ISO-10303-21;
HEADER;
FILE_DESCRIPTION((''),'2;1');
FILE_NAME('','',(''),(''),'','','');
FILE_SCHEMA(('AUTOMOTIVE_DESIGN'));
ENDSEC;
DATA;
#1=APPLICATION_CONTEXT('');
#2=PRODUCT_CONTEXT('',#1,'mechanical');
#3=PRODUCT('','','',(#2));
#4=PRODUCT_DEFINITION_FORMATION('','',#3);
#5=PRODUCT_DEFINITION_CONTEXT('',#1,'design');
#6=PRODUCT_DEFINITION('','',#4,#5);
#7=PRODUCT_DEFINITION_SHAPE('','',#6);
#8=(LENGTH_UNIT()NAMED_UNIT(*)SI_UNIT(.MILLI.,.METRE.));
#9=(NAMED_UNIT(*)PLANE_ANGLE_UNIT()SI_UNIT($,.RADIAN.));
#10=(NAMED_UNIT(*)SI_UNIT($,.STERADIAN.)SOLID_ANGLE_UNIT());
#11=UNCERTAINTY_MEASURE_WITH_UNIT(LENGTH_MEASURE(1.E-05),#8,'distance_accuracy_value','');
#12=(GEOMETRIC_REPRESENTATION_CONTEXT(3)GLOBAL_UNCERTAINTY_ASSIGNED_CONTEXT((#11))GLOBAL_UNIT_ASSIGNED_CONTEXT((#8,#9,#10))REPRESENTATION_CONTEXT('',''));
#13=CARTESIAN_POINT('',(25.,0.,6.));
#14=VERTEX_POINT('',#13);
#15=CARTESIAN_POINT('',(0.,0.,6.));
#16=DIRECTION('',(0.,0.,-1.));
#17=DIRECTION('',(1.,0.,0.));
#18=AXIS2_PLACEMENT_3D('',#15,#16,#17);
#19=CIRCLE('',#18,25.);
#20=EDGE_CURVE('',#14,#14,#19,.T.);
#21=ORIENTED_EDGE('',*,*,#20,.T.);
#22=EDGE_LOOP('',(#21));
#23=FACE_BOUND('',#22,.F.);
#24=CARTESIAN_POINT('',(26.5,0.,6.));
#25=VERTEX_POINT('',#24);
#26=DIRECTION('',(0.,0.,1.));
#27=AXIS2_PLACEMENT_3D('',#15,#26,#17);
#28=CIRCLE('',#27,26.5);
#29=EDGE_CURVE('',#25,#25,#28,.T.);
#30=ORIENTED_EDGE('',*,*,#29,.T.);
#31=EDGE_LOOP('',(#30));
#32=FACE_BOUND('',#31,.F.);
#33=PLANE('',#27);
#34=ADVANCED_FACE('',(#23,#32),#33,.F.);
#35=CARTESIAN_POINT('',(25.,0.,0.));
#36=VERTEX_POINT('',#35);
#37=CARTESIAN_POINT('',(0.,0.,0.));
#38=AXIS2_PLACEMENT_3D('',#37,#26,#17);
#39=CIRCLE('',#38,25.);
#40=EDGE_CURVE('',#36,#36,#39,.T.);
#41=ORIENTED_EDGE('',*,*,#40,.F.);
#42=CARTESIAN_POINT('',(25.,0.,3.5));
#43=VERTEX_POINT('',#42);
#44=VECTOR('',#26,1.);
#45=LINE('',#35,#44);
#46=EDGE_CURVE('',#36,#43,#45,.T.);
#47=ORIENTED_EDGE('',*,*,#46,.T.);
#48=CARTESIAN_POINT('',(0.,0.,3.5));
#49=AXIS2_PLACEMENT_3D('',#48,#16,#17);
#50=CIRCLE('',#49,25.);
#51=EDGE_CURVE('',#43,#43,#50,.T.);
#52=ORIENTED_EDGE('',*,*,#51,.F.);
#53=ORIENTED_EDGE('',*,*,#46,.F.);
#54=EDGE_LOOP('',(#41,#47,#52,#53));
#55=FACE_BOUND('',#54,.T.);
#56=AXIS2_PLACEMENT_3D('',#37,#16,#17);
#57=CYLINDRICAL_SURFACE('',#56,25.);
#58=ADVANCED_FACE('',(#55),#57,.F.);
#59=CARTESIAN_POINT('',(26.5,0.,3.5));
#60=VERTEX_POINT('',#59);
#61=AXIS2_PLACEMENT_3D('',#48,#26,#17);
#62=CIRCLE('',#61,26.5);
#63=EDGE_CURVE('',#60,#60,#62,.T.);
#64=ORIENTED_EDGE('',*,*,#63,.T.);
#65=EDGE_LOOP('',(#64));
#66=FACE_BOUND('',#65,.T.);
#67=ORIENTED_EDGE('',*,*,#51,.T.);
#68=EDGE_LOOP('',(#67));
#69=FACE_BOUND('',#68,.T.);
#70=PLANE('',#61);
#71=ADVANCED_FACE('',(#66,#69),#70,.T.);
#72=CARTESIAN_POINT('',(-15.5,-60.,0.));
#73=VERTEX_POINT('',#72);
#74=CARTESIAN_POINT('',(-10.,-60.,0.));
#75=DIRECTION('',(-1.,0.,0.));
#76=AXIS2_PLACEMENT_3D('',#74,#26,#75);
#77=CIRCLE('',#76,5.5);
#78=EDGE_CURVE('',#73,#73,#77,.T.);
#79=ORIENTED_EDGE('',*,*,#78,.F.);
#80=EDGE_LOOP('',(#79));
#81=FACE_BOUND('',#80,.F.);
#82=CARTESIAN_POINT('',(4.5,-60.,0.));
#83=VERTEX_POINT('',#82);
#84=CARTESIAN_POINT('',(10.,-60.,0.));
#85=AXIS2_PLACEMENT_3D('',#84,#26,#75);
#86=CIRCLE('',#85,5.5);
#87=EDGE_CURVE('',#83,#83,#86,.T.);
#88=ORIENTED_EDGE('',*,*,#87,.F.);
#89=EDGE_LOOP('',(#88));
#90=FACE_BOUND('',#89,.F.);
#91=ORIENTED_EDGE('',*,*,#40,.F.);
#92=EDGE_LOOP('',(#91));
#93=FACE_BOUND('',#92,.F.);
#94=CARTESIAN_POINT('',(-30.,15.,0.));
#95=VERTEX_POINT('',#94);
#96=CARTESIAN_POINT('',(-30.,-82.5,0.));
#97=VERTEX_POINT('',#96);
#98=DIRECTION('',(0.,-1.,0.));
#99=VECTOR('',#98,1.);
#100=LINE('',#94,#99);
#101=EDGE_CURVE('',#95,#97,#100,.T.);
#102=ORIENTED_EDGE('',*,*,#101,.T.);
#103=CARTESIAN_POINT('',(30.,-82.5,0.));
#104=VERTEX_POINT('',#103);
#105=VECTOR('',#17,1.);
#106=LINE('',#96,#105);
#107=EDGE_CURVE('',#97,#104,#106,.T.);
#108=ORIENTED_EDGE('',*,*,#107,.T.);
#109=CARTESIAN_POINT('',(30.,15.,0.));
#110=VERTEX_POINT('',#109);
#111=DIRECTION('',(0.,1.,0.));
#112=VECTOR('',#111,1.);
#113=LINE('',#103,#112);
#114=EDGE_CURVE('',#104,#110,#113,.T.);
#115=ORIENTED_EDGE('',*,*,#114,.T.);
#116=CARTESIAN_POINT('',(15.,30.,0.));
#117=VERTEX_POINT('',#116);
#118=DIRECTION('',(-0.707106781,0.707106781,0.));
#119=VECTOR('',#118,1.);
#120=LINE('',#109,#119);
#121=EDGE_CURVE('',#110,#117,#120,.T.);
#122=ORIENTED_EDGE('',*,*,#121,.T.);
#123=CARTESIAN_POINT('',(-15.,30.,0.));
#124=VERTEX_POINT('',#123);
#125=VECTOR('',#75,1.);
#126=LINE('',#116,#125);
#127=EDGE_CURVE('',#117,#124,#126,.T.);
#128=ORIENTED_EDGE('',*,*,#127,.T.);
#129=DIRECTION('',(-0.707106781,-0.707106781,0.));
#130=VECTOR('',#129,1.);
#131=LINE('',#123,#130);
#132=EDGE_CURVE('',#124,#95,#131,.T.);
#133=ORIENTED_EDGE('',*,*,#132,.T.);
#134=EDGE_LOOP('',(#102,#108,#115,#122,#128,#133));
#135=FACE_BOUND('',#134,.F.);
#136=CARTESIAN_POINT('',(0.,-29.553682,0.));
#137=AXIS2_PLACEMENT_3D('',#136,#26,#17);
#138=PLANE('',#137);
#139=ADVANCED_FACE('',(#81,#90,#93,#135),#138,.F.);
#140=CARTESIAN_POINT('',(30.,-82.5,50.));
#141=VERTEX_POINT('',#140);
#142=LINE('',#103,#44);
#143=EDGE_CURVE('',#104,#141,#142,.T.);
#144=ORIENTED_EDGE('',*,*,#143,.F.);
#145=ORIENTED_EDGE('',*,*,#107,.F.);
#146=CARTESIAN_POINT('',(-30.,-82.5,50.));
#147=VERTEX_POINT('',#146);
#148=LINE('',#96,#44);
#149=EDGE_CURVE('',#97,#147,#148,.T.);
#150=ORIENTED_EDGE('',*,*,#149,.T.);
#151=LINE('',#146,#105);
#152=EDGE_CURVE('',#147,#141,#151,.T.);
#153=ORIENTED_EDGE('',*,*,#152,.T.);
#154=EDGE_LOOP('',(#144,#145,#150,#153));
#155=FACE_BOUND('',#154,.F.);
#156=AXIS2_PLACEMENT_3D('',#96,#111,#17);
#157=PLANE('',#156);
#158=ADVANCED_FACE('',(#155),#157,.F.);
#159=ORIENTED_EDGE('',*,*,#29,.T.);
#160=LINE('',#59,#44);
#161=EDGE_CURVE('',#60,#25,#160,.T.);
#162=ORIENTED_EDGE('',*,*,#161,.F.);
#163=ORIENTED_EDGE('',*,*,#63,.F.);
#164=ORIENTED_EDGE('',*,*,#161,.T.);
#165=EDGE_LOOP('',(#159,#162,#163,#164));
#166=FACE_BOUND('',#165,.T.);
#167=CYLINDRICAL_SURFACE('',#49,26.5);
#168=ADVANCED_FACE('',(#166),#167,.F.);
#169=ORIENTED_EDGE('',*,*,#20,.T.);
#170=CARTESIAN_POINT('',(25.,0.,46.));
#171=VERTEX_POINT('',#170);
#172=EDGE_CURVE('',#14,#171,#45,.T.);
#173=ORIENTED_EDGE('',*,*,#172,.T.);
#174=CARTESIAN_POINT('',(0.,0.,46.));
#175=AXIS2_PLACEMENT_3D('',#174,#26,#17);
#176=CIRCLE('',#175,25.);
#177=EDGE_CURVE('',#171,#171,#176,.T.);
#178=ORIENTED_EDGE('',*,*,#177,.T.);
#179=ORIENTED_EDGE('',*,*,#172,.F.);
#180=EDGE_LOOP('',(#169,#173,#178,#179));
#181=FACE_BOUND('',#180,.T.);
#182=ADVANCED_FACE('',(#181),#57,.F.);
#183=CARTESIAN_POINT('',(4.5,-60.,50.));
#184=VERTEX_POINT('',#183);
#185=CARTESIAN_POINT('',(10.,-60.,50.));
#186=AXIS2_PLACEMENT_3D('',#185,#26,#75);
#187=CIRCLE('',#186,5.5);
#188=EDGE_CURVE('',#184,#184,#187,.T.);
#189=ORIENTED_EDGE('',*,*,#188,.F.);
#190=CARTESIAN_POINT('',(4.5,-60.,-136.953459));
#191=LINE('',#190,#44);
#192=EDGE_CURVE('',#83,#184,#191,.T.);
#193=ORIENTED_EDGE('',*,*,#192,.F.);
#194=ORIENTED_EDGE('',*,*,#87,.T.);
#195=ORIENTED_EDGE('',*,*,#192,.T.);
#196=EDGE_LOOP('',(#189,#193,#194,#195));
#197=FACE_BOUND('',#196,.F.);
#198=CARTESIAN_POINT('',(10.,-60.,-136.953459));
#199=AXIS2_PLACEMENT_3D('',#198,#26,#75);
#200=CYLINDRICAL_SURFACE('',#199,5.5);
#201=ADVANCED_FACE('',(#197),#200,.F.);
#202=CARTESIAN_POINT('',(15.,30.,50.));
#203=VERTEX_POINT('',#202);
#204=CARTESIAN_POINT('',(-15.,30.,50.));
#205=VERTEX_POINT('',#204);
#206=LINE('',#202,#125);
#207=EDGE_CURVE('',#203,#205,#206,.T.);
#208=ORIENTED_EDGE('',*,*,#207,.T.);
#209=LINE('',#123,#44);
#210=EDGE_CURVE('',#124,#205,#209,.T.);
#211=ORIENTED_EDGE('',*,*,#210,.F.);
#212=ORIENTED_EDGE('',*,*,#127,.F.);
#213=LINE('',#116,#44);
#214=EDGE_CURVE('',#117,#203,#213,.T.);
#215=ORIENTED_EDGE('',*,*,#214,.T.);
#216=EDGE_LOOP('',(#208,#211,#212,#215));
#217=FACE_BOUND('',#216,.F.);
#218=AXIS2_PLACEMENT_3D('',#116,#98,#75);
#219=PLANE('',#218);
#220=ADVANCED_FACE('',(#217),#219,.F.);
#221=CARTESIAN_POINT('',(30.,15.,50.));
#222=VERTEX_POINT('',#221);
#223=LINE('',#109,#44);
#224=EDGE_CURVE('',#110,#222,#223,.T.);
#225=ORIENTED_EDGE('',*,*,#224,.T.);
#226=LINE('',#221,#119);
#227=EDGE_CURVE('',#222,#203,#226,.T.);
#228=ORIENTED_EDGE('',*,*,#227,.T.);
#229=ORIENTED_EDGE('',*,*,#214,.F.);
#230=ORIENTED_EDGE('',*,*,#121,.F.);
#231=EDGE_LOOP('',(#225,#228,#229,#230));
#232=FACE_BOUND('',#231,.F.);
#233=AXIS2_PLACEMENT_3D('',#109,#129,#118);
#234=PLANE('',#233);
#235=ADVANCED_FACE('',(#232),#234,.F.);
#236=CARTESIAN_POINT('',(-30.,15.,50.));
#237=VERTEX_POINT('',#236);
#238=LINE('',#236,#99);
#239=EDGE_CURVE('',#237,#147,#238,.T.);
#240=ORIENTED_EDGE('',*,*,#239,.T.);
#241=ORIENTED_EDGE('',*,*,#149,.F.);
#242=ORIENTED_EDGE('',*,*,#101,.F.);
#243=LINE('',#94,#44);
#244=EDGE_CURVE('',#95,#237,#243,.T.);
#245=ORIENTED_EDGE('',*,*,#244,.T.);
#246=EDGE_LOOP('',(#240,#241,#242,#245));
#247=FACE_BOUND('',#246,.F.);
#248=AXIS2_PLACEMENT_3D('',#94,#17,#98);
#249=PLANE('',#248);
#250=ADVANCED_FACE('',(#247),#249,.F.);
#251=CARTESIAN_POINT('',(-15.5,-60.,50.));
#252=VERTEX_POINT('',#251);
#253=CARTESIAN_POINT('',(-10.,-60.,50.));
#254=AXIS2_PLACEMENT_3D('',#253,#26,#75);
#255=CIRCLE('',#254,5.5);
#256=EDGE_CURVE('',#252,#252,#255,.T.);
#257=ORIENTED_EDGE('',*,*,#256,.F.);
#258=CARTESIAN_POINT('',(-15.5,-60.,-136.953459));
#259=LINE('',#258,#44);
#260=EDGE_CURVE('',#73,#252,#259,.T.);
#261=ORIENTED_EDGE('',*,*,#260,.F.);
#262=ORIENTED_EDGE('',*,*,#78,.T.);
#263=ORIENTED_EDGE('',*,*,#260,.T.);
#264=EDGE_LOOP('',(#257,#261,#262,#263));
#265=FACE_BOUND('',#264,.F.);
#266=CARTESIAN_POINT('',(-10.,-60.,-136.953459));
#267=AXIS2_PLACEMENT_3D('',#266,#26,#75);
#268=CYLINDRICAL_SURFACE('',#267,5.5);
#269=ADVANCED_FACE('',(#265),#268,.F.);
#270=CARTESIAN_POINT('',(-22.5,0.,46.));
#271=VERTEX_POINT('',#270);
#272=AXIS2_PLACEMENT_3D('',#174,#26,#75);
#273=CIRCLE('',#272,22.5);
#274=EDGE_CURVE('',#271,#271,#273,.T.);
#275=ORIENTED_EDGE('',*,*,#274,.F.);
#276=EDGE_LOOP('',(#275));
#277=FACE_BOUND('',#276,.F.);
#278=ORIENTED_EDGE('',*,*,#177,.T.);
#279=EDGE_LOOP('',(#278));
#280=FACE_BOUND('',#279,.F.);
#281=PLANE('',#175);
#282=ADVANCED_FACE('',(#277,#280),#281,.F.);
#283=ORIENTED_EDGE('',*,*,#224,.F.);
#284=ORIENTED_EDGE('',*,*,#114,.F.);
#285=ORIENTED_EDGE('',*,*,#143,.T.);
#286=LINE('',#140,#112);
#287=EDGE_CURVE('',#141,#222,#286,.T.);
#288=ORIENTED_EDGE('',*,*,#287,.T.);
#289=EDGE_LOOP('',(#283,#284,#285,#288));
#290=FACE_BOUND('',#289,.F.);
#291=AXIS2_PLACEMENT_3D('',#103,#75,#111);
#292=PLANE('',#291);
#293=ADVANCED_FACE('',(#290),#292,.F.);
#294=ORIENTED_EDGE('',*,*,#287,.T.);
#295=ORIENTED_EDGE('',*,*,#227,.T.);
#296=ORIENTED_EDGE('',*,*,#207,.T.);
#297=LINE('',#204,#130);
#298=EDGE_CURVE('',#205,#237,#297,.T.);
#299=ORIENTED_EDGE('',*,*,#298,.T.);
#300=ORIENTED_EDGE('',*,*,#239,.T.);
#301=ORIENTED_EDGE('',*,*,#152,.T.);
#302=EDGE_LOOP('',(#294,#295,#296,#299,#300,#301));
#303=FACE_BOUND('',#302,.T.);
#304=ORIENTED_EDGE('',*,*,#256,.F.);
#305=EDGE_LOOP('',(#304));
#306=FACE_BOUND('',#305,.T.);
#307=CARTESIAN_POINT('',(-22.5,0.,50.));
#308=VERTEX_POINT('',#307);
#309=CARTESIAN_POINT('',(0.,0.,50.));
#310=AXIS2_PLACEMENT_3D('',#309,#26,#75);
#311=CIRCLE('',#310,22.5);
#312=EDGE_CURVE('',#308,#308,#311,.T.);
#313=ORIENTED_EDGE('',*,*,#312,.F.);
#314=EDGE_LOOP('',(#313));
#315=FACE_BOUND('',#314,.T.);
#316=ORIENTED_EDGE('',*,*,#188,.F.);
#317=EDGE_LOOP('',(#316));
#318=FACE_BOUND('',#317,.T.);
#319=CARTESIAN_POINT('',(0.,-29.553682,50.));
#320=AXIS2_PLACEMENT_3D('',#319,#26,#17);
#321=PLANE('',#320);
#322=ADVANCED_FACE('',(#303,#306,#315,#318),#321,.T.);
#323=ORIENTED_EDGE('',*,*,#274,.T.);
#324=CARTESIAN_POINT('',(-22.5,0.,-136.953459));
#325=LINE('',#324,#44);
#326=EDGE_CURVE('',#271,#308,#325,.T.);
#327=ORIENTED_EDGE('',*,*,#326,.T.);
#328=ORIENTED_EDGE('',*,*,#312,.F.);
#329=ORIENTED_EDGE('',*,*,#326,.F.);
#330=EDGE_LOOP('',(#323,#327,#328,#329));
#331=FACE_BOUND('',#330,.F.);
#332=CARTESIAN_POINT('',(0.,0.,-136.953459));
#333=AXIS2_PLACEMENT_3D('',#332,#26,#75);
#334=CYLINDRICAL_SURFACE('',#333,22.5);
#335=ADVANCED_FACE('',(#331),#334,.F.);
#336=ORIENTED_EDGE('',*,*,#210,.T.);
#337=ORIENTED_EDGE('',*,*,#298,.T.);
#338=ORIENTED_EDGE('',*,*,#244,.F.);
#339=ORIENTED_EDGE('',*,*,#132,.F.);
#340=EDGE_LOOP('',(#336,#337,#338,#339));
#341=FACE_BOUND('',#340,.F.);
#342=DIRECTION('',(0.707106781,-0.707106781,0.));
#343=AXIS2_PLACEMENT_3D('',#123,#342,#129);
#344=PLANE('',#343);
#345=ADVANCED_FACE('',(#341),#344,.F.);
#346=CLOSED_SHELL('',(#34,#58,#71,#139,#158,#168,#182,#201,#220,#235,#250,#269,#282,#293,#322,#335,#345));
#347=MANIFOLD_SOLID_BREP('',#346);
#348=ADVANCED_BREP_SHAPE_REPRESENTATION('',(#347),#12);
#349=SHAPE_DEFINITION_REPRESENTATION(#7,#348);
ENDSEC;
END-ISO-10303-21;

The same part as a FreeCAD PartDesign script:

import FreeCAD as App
import Part
import Sketcher
from FreeCAD import Vector

doc = App.newDocument("Part")
body = doc.addObject("PartDesign::Body", "Body")

# Sketch on XY plane
sketch1 = doc.addObject("Sketcher::SketchObject", "Sketch")
body.addObject(sketch1)
sketch1.AttachmentSupport = (doc.XY_Plane, [""])
sketch1.MapMode = "FlatFace"
sketch1.addGeometry([
    Part.LineSegment(Vector(15, 30, 0), Vector(-15, 30, 0)),  # 0
    Part.LineSegment(Vector(-15, 30, 0), Vector(-30, 15, 0)),  # 1
    Part.LineSegment(Vector(-30, 15, 0), Vector(-30, -82, 0)),  # 2
    Part.LineSegment(Vector(-30, -82, 0), Vector(30, -82, 0)),  # 3
    Part.LineSegment(Vector(30, -82, 0), Vector(30, 15, 0)),  # 4
    Part.LineSegment(Vector(30, 15, 0), Vector(15, 30, 0)),  # 5
], False)
sketch1.addConstraint([
    Sketcher.Constraint("Coincident", 0, 2, 1, 1),
    Sketcher.Constraint("Coincident", 1, 2, 2, 1),
    Sketcher.Constraint("Coincident", 2, 2, 3, 1),
    Sketcher.Constraint("Coincident", 3, 2, 4, 1),
    Sketcher.Constraint("Coincident", 4, 2, 5, 1),
    Sketcher.Constraint("Coincident", 5, 2, 0, 1),
    Sketcher.Constraint("Horizontal", 0),
    Sketcher.Constraint("Vertical", 2),
    Sketcher.Constraint("Horizontal", 3),
    Sketcher.Constraint("Vertical", 4),
    Sketcher.Constraint("Symmetric", 1, 2, 4, 2, -2),
    Sketcher.Constraint("Perpendicular", 1, 5),
    Sketcher.Constraint("Equal", 1, 5),
    Sketcher.Constraint("DistanceX", 0, 2, 0, 1, 30.0),
    Sketcher.Constraint("DistanceX", 3, 1, 3, 2, 60.0),
    Sketcher.Constraint("DistanceY", 2, 2, 2, 1, 97.5),
    Sketcher.Constraint("DistanceY", -1, 1, 0, 2, 30.0),
])
pad1 = doc.addObject("PartDesign::Pad", "Pad")
body.addObject(pad1)
pad1.Profile = sketch1
pad1.Length = 50

# Sketch on XY plane
sketch2 = doc.addObject("Sketcher::SketchObject", "Sketch001")
body.addObject(sketch2)
sketch2.AttachmentSupport = (doc.XY_Plane, [""])
sketch2.MapMode = "FlatFace"
sketch2.addGeometry([
    Part.Circle(Vector(-10, -60, 0), Vector(0, 0, 1), 6),
    Part.Circle(Vector(10, -60, 0), Vector(0, 0, 1), 6),
], False)
sketch2.addConstraint([
    Sketcher.Constraint("Equal", 0, 1),
    Sketcher.Constraint("Symmetric", 0, 3, 1, 3, -2),
    Sketcher.Constraint("Diameter", 0, 11.0),
    Sketcher.Constraint("DistanceX", 0, 3, -1, 1, 10.0),
    Sketcher.Constraint("DistanceY", 0, 3, -1, 1, 60.0),
])
doc.recompute()
hole = doc.addObject("PartDesign::Hole", "Hole")
body.addObject(hole)
hole.Profile = sketch2
hole.ThreadType = "None"
hole.Diameter = 11
hole.DepthType = "ThroughAll"
hole.Reversed = True

# Sketch on XY plane
sketch3 = doc.addObject("Sketcher::SketchObject", "Sketch002")
body.addObject(sketch3)
sketch3.AttachmentSupport = (doc.XY_Plane, [""])
sketch3.MapMode = "FlatFace"
sketch3.addGeometry(Part.Circle(Vector(0, 0, 0), Vector(0, 0, 1), 22), False)
sketch3.addConstraint([
    Sketcher.Constraint("Coincident", 0, 3, -1, 1),
    Sketcher.Constraint("Diameter", 0, 45.0),
])
doc.recompute()
hole2 = doc.addObject("PartDesign::Hole", "Hole001")
body.addObject(hole2)
hole2.Profile = sketch3
hole2.ThreadType = "None"
hole2.Diameter = 45
hole2.DepthType = "ThroughAll"
hole2.Reversed = True

# Sketch on XY plane
sketch4 = doc.addObject("Sketcher::SketchObject", "Sketch003")
body.addObject(sketch4)
sketch4.AttachmentSupport = (doc.XY_Plane, [""])
sketch4.MapMode = "FlatFace"
sketch4.addGeometry(Part.Circle(Vector(0, 0, 0), Vector(0, 0, 1), 25), False)
sketch4.addConstraint([
    Sketcher.Constraint("Coincident", 0, 3, -1, 1),
    Sketcher.Constraint("Diameter", 0, 50.0),
])
pocket1 = doc.addObject("PartDesign::Pocket", "Pocket")
body.addObject(pocket1)
pocket1.Profile = sketch4
pocket1.Length = 46
pocket1.Reversed = True

# Sketch on XY plane
sketch5 = doc.addObject("Sketcher::SketchObject", "Sketch004")
body.addObject(sketch5)
sketch5.AttachmentSupport = (doc.XY_Plane, [""])
sketch5.MapMode = "FlatFace"
sketch5.AttachmentOffset = App.Placement(Vector(0, 0, 3.5), App.Rotation())
sketch5.addGeometry(Part.Circle(Vector(0, 0, 0), Vector(0, 0, 1), 26), False)
sketch5.addConstraint([
    Sketcher.Constraint("Coincident", 0, 3, -1, 1),
    Sketcher.Constraint("Diameter", 0, 53.0),
])
pocket2 = doc.addObject("PartDesign::Pocket", "Pocket001")
body.addObject(pocket2)
pocket2.Profile = sketch5
pocket2.Length = 2.5
pocket2.Reversed = True

doc.recompute()
